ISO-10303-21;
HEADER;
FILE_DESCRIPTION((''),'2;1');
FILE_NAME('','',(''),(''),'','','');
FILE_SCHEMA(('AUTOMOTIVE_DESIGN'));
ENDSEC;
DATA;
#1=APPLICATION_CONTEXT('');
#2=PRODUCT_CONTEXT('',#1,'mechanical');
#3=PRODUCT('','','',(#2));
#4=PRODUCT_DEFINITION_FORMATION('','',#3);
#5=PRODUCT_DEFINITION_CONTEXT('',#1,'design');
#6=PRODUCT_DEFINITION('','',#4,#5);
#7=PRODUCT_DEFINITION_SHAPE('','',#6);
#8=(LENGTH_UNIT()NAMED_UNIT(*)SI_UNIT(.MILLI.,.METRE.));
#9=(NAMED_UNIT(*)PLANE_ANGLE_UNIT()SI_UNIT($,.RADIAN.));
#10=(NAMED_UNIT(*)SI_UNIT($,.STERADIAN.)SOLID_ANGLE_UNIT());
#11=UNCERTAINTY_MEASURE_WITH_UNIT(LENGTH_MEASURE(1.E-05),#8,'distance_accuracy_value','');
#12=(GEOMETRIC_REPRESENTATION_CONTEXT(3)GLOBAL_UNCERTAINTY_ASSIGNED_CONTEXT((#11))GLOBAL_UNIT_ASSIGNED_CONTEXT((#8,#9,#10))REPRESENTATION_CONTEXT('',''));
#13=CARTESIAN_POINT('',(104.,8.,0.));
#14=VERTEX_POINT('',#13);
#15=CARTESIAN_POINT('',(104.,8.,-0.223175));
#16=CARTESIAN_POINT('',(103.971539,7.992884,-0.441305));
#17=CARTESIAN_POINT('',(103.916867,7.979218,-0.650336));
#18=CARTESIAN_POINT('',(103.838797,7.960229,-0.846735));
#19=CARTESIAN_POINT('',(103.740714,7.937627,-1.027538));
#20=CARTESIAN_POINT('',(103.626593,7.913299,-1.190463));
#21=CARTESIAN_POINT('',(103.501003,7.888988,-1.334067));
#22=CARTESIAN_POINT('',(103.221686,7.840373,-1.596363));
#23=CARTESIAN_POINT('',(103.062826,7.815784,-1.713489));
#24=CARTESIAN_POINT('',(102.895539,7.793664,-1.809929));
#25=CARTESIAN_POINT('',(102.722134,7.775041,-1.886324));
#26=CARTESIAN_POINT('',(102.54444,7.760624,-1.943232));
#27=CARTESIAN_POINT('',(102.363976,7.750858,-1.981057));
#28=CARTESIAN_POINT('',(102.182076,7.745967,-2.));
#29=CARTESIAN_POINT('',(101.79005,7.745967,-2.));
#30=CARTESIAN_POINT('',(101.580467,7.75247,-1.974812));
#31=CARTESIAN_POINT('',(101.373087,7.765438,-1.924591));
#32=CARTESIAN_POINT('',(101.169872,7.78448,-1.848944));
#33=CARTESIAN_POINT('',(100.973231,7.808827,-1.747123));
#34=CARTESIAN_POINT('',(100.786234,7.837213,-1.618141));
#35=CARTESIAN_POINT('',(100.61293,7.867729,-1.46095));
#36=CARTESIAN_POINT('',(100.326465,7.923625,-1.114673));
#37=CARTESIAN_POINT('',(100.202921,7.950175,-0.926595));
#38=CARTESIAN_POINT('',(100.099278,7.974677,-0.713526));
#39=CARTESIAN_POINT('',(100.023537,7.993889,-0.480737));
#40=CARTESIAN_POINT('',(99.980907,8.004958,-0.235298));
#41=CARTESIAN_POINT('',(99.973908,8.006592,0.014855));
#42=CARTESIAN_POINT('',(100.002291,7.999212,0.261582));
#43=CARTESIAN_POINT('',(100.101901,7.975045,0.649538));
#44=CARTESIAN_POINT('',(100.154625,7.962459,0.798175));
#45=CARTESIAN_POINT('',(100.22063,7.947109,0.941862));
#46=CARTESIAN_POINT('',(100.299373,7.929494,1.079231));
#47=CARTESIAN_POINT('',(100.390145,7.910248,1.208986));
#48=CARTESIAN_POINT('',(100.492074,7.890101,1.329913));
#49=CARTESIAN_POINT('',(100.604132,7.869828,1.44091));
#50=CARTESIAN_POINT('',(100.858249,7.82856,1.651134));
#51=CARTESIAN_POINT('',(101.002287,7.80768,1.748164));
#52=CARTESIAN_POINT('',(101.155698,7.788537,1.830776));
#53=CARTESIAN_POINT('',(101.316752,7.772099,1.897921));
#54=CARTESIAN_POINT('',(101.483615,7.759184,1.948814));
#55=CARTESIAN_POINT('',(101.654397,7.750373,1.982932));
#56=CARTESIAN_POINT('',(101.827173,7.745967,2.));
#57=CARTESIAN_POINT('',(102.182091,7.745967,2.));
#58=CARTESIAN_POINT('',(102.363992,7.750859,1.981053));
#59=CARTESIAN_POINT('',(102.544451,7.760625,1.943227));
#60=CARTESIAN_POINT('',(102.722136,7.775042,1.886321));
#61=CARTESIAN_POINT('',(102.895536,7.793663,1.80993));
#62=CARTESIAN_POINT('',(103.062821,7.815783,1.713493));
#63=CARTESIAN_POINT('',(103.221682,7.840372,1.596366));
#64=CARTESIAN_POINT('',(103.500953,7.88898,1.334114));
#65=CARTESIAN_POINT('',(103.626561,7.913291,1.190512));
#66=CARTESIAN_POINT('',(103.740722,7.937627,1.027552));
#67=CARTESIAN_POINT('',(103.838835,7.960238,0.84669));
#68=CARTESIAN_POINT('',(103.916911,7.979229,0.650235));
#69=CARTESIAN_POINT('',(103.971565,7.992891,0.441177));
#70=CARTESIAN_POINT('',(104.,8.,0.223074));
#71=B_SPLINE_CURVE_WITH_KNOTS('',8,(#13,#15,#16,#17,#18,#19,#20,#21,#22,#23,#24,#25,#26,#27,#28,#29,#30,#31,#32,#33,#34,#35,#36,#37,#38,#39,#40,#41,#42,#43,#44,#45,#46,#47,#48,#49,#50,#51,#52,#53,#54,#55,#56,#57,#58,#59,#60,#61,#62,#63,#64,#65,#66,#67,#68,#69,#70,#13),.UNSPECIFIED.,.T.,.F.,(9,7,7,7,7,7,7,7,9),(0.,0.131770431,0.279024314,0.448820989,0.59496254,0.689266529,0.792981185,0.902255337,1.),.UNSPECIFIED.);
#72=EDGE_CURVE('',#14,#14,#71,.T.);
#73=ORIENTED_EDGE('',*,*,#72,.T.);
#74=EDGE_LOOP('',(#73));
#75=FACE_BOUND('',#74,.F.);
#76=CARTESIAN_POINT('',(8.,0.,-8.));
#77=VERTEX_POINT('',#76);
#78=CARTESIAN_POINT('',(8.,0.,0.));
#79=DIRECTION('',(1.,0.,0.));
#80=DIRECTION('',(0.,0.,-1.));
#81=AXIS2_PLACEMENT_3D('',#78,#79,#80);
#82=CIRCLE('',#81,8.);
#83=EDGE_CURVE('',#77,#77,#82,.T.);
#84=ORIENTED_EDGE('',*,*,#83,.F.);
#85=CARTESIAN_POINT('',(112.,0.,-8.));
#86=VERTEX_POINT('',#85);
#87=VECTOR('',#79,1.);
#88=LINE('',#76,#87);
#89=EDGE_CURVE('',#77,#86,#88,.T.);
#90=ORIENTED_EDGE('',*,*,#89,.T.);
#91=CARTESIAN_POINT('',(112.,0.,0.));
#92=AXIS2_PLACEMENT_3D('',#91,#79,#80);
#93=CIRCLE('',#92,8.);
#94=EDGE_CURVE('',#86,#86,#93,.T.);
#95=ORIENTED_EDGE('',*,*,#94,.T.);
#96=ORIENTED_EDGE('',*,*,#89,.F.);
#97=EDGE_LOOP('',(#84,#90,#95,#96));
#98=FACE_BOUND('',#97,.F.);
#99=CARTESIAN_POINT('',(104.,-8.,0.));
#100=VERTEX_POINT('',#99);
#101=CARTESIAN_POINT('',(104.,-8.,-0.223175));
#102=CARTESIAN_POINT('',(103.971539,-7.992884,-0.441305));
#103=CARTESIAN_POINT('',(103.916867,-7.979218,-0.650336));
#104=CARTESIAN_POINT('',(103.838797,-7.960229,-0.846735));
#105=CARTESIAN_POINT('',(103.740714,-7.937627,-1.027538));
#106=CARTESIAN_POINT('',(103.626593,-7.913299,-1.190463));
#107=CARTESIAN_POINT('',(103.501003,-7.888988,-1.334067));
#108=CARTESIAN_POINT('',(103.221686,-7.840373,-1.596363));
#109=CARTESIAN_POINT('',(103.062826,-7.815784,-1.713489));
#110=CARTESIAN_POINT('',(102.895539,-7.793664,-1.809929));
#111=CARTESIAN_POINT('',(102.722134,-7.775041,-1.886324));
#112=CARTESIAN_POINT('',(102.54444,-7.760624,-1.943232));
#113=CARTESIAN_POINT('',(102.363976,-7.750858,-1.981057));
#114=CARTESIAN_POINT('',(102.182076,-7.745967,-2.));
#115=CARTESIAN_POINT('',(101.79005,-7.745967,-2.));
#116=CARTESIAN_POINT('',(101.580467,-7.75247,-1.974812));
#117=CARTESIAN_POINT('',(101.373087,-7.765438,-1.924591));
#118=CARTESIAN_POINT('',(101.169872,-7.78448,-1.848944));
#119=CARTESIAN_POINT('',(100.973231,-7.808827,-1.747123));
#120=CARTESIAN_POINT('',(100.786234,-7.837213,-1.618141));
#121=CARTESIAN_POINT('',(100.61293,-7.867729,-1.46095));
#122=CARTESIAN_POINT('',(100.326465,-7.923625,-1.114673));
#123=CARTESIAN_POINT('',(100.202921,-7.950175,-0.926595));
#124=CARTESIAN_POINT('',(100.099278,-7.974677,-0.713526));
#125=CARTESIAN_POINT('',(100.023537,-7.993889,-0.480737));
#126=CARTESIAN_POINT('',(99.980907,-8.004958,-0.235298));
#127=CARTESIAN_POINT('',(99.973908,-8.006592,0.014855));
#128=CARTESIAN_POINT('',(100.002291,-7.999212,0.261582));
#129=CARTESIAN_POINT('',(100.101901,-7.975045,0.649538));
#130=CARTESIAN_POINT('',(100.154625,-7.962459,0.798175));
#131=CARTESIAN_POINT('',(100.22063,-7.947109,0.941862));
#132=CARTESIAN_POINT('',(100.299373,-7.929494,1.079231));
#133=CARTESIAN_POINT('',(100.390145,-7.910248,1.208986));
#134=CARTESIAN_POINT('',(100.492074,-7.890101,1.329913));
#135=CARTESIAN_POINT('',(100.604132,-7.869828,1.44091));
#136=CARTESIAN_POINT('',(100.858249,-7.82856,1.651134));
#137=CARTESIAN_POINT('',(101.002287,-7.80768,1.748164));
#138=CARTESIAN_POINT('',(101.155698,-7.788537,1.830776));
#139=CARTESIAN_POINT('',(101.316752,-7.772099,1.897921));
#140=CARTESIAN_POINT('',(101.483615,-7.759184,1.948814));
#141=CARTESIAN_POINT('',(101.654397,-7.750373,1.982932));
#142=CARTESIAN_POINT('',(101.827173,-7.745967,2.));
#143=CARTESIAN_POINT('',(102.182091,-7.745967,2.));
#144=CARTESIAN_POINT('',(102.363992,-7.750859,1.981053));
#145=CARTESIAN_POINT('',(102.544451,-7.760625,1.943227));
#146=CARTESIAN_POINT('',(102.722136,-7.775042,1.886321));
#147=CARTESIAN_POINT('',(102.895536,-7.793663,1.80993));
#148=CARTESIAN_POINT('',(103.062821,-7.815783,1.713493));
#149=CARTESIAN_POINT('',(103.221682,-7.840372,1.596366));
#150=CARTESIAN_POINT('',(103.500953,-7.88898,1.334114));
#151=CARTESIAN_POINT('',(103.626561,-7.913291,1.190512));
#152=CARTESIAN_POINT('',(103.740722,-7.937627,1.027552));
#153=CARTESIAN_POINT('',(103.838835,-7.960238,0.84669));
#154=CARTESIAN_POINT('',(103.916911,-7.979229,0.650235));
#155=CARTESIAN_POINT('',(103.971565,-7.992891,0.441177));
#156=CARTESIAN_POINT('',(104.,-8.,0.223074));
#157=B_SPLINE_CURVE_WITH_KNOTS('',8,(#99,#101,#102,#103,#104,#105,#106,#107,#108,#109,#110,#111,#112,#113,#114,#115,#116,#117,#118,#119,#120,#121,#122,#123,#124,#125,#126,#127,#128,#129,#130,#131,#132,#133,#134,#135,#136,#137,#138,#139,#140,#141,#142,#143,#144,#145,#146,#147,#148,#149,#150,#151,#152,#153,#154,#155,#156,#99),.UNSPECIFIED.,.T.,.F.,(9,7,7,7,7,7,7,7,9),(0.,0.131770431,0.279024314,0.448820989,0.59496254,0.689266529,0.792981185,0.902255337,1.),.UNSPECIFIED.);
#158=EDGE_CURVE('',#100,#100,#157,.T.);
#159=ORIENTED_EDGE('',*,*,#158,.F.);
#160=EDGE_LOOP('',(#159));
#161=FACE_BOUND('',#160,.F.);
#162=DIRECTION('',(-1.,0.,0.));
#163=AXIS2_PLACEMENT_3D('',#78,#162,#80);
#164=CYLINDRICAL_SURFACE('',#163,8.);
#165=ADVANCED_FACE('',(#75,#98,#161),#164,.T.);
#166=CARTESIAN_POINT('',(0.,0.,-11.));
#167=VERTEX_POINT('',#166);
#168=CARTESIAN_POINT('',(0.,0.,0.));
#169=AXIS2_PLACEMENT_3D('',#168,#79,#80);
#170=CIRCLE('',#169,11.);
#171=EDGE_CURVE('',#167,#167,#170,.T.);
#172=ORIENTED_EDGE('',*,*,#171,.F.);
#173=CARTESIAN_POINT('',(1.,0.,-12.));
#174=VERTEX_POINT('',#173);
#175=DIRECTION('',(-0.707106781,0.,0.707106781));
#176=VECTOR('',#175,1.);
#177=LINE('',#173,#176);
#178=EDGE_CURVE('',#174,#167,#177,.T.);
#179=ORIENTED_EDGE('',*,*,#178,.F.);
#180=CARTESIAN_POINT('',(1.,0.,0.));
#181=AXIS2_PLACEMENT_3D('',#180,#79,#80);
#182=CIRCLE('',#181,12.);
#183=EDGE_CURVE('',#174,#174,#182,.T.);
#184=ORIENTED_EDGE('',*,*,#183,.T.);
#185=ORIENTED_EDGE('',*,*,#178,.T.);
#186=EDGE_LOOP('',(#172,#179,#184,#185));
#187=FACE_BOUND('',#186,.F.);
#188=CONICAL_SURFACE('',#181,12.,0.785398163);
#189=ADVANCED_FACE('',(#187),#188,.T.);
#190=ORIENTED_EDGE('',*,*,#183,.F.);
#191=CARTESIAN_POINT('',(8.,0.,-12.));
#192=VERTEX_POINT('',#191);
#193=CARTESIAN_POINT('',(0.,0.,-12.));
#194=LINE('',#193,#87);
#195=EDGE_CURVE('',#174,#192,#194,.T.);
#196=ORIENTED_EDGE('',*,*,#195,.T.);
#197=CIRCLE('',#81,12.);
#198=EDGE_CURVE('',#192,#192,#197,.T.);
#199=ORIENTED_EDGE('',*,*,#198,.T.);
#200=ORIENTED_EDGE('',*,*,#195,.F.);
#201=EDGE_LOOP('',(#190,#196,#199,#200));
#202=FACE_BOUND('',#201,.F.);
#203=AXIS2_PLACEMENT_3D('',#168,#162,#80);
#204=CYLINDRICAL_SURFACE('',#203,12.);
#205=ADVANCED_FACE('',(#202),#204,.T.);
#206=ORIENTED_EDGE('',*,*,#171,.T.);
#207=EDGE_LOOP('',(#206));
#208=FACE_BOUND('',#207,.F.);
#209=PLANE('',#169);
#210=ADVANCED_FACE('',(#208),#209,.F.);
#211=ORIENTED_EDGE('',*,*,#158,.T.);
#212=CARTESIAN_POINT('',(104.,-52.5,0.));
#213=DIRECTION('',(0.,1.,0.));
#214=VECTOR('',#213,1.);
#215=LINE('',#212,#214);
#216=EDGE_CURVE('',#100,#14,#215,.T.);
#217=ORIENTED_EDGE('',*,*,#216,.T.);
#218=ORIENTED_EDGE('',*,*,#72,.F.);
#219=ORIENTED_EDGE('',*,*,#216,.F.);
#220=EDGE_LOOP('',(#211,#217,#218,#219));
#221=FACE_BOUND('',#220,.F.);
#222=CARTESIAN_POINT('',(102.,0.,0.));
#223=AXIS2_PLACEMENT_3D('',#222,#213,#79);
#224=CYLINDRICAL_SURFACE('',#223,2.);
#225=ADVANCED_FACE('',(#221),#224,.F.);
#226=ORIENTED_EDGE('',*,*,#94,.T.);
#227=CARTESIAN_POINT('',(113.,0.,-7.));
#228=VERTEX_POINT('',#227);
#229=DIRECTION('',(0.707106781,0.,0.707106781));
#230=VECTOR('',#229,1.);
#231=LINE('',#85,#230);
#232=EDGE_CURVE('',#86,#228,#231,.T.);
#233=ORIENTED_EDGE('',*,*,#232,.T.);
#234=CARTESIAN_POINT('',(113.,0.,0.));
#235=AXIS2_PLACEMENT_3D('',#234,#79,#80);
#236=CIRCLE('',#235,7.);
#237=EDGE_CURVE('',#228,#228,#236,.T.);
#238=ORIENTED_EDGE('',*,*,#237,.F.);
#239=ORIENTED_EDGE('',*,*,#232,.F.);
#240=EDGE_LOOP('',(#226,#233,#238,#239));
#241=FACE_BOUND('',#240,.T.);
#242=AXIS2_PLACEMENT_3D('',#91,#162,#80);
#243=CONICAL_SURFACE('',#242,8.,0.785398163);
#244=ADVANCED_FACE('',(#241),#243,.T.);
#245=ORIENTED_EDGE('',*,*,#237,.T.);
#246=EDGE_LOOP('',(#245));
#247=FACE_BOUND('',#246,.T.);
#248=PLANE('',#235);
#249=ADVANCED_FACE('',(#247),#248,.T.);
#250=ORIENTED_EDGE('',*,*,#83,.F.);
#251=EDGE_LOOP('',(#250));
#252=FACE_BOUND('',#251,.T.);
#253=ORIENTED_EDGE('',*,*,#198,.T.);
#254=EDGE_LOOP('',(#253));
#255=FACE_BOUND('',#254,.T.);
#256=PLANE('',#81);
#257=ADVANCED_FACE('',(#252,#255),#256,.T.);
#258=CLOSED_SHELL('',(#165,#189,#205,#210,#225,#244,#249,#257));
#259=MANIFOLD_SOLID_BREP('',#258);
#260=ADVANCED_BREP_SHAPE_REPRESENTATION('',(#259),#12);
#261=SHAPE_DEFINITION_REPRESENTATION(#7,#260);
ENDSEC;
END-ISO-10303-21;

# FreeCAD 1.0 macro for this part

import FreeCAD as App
import Part
import Sketcher
from FreeCAD import Vector
Q = App.Units.Quantity


def edges_at(feature, points):
    """Names of the edges that pass closest to the given points."""
    edges = feature.Shape.Edges
    near = lambda p: min(range(len(edges)), key=lambda i: edges[i].distToShape(Part.Vertex(*p))[0])
    return sorted({f"Edge{near(p) + 1}" for p in points})

doc = App.newDocument("Part")
params = doc.addObject("Spreadsheet::Sheet", "Params")
for row, (alias, value) in enumerate([
    ("sketch1_diameter", "24 mm"),
    ("pad1_length", "8 mm"),
    ("chamfer_size", "1 mm"),
    ("sketch2_diameter", "16 mm"),
    ("pad2_length", "105 mm"),
    ("chamfer2_size", "1 mm"),
    ("sketch3_diameter", "4 mm"),
    ("pocket1_length", "105 mm"),
], start=1):
    params.set(f"A{row}", alias)
    params.set(f"B{row}", "=" + value)
    params.setAlias(f"B{row}", alias)

body = doc.addObject("PartDesign::Body", "Body")

sketch1 = body.newObject("Sketcher::SketchObject", "Sketch")
sketch1.AttachmentSupport = (doc.getObject("YZ_Plane"), [""])
sketch1.MapMode = "FlatFace"
sketch1.addGeometry(Part.Circle(Vector(0, 0, 0), Vector(0, 0, 1), 12), False)
sketch1.addConstraint(Sketcher.Constraint("Coincident", 0, 3, -1, 1))
sketch1.addConstraint(Sketcher.Constraint("Diameter", 0, Q("24 mm")))
sketch1.setExpression("Constraints[1]", "Params.sketch1_diameter")
pad1 = body.newObject("PartDesign::Pad", "Pad")
pad1.Profile = sketch1
pad1.setExpression("Length", "Params.pad1_length")
doc.recompute()

chamfer = body.newObject("PartDesign::Chamfer", "Chamfer")
chamfer.Base = (pad1, edges_at(pad1, [(0, 0, 12)]))
chamfer.setExpression("Size", "Params.chamfer_size")

sketch2 = body.newObject("Sketcher::SketchObject", "Sketch001")
sketch2.AttachmentSupport = (doc.getObject("YZ_Plane"), [""])
sketch2.MapMode = "FlatFace"
sketch2.AttachmentOffset = App.Placement(Vector(0, 0, 8), App.Rotation())
sketch2.addGeometry(Part.Circle(Vector(0, 0, 0), Vector(0, 0, 1), 8), False)
sketch2.addConstraint(Sketcher.Constraint("Coincident", 0, 3, -1, 1))
sketch2.addConstraint(Sketcher.Constraint("Diameter", 0, Q("16 mm")))
sketch2.setExpression("Constraints[1]", "Params.sketch2_diameter")
pad2 = body.newObject("PartDesign::Pad", "Pad001")
pad2.Profile = sketch2
pad2.setExpression("Length", "Params.pad2_length")
doc.recompute()

chamfer2 = body.newObject("PartDesign::Chamfer", "Chamfer001")
chamfer2.Base = (pad2, edges_at(pad2, [(113, 0, 8)]))
chamfer2.setExpression("Size", "Params.chamfer2_size")

sketch3 = body.newObject("Sketcher::SketchObject", "Sketch002")
sketch3.AttachmentSupport = (doc.getObject("XZ_Plane"), [""])
sketch3.MapMode = "FlatFace"
sketch3.addGeometry(Part.Circle(Vector(102, 0, 0), Vector(0, 0, 1), 2), False)
sketch3.addConstraint(Sketcher.Constraint("PointOnObject", 0, 3, -1))
sketch3.addConstraint(Sketcher.Constraint("Diameter", 0, Q("4 mm")))
sketch3.addConstraint(Sketcher.Constraint("DistanceX", -1, 1, 0, 3, Q("102 mm")))
sketch3.setExpression("Constraints[1]", "Params.sketch3_diameter")
pocket1 = body.newObject("PartDesign::Pocket", "Pocket")
pocket1.Profile = sketch3
pocket1.setExpression("Length", "Params.pocket1_length")
pocket1.Midplane = True

doc.recompute()
